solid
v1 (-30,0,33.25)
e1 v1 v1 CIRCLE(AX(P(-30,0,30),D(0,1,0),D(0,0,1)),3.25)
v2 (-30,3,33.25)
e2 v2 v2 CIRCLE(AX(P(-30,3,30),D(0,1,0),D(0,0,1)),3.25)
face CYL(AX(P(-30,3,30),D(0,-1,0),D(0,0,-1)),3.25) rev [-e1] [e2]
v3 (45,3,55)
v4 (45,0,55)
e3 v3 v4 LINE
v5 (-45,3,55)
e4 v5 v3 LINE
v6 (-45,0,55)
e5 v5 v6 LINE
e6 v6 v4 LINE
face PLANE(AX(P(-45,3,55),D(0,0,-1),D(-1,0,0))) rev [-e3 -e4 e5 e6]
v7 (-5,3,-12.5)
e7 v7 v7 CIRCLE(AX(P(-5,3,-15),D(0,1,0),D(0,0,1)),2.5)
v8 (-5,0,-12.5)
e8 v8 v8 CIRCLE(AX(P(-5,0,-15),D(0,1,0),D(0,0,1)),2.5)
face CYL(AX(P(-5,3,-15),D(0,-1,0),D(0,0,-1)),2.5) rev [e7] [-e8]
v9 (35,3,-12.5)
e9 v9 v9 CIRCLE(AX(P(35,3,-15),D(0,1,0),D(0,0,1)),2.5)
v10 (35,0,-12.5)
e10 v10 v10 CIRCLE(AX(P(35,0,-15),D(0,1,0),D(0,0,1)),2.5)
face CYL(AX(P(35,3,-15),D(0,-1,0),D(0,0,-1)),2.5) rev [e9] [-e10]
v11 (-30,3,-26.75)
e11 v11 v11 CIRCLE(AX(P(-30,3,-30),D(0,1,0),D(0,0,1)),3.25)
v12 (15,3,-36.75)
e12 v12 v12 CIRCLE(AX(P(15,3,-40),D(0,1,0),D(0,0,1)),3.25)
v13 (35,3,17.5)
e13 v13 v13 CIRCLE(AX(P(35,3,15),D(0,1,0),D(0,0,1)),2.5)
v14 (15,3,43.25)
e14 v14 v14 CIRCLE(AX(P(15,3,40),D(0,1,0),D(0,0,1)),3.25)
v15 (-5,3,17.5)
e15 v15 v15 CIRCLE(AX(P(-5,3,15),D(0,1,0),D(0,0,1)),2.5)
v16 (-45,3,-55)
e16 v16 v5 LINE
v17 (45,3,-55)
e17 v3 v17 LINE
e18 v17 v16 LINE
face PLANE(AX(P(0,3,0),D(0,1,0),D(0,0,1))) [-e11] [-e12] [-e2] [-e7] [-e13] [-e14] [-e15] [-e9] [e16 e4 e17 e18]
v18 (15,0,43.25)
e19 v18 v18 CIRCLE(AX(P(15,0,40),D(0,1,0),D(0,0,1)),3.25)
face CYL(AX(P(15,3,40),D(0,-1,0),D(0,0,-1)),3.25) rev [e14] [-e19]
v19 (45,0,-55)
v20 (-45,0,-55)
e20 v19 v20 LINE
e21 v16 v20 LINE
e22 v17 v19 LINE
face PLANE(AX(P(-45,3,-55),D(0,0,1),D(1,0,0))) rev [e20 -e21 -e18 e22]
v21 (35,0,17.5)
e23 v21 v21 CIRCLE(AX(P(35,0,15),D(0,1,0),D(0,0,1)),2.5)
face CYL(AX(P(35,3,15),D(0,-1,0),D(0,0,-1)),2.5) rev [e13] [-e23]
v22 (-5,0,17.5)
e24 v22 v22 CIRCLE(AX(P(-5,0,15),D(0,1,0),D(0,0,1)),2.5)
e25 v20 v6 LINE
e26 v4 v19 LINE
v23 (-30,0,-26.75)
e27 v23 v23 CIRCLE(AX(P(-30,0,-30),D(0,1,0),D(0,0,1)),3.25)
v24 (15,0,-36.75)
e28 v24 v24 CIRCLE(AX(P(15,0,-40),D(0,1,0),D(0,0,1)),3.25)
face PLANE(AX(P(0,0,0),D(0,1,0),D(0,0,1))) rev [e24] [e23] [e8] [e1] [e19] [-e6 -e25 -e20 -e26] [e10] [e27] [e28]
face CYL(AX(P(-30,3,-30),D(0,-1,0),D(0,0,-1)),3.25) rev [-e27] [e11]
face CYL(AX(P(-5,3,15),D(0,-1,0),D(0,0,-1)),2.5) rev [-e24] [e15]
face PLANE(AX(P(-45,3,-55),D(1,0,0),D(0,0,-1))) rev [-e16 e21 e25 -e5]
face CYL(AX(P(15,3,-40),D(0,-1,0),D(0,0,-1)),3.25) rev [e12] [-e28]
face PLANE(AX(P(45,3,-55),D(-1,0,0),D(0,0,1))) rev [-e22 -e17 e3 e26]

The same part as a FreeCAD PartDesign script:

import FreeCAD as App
import Part
import Sketcher

doc = App.newDocument("Part")
body = doc.addObject("PartDesign::Body", "Body")

sketch1 = doc.addObject("Sketcher::SketchObject", "Sketch")
body.addObject(sketch1)
sketch1.AttachmentSupport = (doc.XZ_Plane, [""])
sketch1.MapMode = "FlatFace"
sketch1.addGeometry([
    Part.LineSegment(App.Vector(-45, -55, 0), App.Vector(-45, 55, 0)),
    Part.LineSegment(App.Vector(-45, 55, 0), App.Vector(45, 55, 0)),
    Part.LineSegment(App.Vector(45, 55, 0), App.Vector(45, -55, 0)),
    Part.LineSegment(App.Vector(45, -55, 0), App.Vector(-45, -55, 0)),
    Part.Circle(App.Vector(-30, 30, 0), App.Vector(0, 0, 1), 3.2),
    Part.Circle(App.Vector(-5, 15, 0), App.Vector(0, 0, 1), 2.5),
    Part.Circle(App.Vector(15, 40, 0), App.Vector(0, 0, 1), 3.2),
    Part.Circle(App.Vector(35, 15, 0), App.Vector(0, 0, 1), 2.5),
    Part.Circle(App.Vector(-5, -15, 0), App.Vector(0, 0, 1), 2.5),
    Part.Circle(App.Vector(-30, -30, 0), App.Vector(0, 0, 1), 3.2),
    Part.Circle(App.Vector(35, -15, 0), App.Vector(0, 0, 1), 2.5),
    Part.Circle(App.Vector(15, -40, 0), App.Vector(0, 0, 1), 3.2),
], False)
sketch1.addConstraint([
    Sketcher.Constraint("Coincident", 0, 2, 1, 1),
    Sketcher.Constraint("Coincident", 1, 2, 2, 1),
    Sketcher.Constraint("Coincident", 2, 2, 3, 1),
    Sketcher.Constraint("Coincident", 3, 2, 0, 1),
    Sketcher.Constraint("Vertical", 0),
    Sketcher.Constraint("Horizontal", 1),
    Sketcher.Constraint("Vertical", 2),
    Sketcher.Constraint("Horizontal", 3),
    Sketcher.Constraint("Equal", 4, 6),
    Sketcher.Constraint("Equal", 5, 7),
    Sketcher.Constraint("Equal", 7, 8),
    Sketcher.Constraint("Equal", 6, 9),
    Sketcher.Constraint("Equal", 8, 10),
    Sketcher.Constraint("Equal", 9, 11),
    Sketcher.Constraint("Symmetric", 0, 2, 2, 2, -1, 1),
    Sketcher.Constraint("Symmetric", 5, 3, 8, 3, -1),
    Sketcher.Constraint("Symmetric", 4, 3, 9, 3, -1),
    Sketcher.Constraint("Symmetric", 7, 3, 10, 3, -1),
    Sketcher.Constraint("Symmetric", 6, 3, 11, 3, -1),
    Sketcher.Constraint("Horizontal", 5, 3, 7, 3),
    Sketcher.Constraint("Diameter", 5, 5.0),
    Sketcher.Constraint("Diameter", 4, 6.5),
    Sketcher.Constraint("DistanceX", 1, 1, 1, 2, 90.0),
    Sketcher.Constraint("DistanceY", 0, 1, 0, 2, 110.0),
    Sketcher.Constraint("DistanceX", 4, 3, -1, 1, 30.0),
    Sketcher.Constraint("DistanceY", -1, 1, 4, 3, 30.0),
    Sketcher.Constraint("DistanceX", 5, 3, -1, 1, 5.0),
    Sketcher.Constraint("DistanceY", -1, 1, 5, 3, 15.0),
    Sketcher.Constraint("DistanceX", -1, 1, 6, 3, 15.0),
    Sketcher.Constraint("DistanceY", -1, 1, 6, 3, 40.0),
    Sketcher.Constraint("DistanceX", -1, 1, 7, 3, 35.0),
])
pad1 = doc.addObject("PartDesign::Pad", "Pad")
body.addObject(pad1)
pad1.Profile = sketch1
pad1.Length = 3
pad1.Reversed = True

doc.recompute()
